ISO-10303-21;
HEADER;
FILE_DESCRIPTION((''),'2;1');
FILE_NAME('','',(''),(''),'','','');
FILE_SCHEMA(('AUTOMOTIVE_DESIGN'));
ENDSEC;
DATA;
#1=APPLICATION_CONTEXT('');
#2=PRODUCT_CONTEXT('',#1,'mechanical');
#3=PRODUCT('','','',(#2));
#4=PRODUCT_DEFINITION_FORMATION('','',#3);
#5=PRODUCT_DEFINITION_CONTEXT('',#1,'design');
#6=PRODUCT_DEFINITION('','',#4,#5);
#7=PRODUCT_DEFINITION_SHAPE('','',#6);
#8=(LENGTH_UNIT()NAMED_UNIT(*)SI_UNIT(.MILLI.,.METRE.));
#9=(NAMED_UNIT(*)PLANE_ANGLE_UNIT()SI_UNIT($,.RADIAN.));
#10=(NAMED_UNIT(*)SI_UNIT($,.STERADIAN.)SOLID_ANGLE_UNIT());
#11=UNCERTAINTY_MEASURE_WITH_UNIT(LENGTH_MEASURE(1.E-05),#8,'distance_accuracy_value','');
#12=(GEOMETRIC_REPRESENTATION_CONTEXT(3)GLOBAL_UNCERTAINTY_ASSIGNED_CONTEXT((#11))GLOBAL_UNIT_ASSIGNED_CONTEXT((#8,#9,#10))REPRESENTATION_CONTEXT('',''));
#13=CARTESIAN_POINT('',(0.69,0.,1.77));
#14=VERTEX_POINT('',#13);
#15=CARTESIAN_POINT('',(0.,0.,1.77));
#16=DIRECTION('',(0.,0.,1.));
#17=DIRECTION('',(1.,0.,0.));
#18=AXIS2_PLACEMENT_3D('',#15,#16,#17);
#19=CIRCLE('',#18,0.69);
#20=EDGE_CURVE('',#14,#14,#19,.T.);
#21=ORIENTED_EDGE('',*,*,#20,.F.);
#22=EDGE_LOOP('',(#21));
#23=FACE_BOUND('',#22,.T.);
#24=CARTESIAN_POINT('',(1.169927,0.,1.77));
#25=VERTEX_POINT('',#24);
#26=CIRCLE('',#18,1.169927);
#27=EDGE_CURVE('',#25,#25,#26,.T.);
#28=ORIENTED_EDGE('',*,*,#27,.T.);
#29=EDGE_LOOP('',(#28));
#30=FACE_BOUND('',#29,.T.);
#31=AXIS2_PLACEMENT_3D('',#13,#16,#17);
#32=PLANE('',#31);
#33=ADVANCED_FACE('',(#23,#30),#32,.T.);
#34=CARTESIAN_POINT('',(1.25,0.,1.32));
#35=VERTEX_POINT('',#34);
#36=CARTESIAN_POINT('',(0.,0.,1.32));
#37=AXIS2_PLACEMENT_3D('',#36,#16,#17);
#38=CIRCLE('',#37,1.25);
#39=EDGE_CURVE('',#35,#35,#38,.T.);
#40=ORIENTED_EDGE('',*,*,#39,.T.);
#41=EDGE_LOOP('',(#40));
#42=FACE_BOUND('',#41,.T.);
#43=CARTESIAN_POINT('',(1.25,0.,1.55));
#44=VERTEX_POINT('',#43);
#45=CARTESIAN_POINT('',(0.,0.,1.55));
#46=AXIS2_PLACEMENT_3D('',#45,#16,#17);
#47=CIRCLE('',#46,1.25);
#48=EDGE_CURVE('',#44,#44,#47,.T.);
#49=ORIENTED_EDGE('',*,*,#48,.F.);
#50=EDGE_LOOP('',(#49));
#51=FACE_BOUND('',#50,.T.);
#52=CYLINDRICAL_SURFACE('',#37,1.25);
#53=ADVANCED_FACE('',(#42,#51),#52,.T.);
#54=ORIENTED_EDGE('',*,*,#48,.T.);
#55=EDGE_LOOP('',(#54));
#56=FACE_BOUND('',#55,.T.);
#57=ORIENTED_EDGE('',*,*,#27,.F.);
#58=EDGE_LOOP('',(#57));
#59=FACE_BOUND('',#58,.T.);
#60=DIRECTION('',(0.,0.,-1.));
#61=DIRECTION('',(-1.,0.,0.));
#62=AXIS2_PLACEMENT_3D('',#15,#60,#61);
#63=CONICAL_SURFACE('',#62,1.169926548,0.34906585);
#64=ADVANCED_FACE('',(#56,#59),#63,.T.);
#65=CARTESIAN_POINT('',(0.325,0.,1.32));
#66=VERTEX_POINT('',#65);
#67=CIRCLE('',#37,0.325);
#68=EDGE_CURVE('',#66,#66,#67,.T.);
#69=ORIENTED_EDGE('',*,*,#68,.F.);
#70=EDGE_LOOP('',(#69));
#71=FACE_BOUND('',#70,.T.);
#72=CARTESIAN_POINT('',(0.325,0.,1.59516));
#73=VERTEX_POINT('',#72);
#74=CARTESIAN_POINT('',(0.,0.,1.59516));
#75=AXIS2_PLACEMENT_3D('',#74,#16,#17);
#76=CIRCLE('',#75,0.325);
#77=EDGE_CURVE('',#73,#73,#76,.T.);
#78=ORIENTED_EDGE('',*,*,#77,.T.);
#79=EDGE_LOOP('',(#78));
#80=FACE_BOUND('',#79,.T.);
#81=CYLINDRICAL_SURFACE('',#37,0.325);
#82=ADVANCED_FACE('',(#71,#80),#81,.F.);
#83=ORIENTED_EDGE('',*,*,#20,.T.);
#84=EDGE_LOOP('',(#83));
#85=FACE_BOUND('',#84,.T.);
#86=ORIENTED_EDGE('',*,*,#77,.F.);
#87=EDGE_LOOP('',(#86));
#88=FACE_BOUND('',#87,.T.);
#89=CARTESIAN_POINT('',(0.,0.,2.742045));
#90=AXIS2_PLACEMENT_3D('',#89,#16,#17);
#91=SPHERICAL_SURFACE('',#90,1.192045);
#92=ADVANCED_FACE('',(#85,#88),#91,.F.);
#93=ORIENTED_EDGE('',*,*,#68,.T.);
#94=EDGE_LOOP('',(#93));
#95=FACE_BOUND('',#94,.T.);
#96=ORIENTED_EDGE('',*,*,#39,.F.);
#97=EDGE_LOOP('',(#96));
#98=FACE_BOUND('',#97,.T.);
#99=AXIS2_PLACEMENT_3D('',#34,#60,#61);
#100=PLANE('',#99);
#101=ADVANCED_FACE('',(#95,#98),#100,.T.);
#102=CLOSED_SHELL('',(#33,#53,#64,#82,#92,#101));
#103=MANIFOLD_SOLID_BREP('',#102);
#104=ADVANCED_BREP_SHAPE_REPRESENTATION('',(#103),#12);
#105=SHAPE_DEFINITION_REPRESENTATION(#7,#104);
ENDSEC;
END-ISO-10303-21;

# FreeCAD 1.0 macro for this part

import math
import FreeCAD as App
import Part
import Sketcher
Q = App.Units.Quantity

doc = App.newDocument("Part")
body = doc.addObject("PartDesign::Body", "Body")

sketch1 = doc.addObject("Sketcher::SketchObject", "Sketch")
body.addObject(sketch1)
sketch1.AttachmentSupport = (doc.XZ_Plane, [""])
sketch1.MapMode = "FlatFace"
sketch1.addGeometry([
    Part.LineSegment(App.Vector(1.25, 1.55, 0), App.Vector(1.25, 1.32, 0)),
    Part.LineSegment(App.Vector(1.25, 1.32, 0), App.Vector(0.33, 1.32, 0)),
    Part.LineSegment(App.Vector(0.33, 1.32, 0), App.Vector(0.33, 1.6, 0)),
    Part.ArcOfCircle(Part.Circle(App.Vector(0, 2.74, 0), App.Vector(0, 0, 1), 1.19), math.radians(-74.18), math.radians(-54.63)),
    Part.LineSegment(App.Vector(0.69, 1.77, 0), App.Vector(1.17, 1.77, 0)),
    Part.LineSegment(App.Vector(1.17, 1.77, 0), App.Vector(1.25, 1.55, 0)),
], False)
sketch1.addConstraint([
    Sketcher.Constraint("Coincident", 0, 2, 1, 1),
    Sketcher.Constraint("Coincident", 1, 2, 2, 1),
    Sketcher.Constraint("Coincident", 2, 2, 3, 1),
    Sketcher.Constraint("Coincident", 3, 2, 4, 1),
    Sketcher.Constraint("Coincident", 4, 2, 5, 1),
    Sketcher.Constraint("Coincident", 5, 2, 0, 1),
    Sketcher.Constraint("Vertical", 0),
    Sketcher.Constraint("Horizontal", 1),
    Sketcher.Constraint("Vertical", 2),
    Sketcher.Constraint("Horizontal", 4),
    Sketcher.Constraint("PointOnObject", 3, 3, -2),
    Sketcher.Constraint("Angle", 5, Q("-70 deg")),
    Sketcher.Constraint("DistanceY", 0, 2, 0, 1, 0.23),
    Sketcher.Constraint("DistanceX", 1, 2, 1, 1, 0.925),
    Sketcher.Constraint("DistanceX", -1, 1, 0, 2, 1.25),
    Sketcher.Constraint("DistanceY", -1, 1, 0, 2, 1.32),
    Sketcher.Constraint("DistanceX", -1, 1, 3, 2, 0.69),
    Sketcher.Constraint("DistanceY", -1, 1, 3, 2, 1.77),
    Sketcher.Constraint("Radius", 3, 1.192045),
])
revolution = doc.addObject("PartDesign::Revolution", "Revolution")
body.addObject(revolution)
revolution.Profile = sketch1
revolution.ReferenceAxis = (sketch1, ["V_Axis"])
revolution.Angle = 360

doc.recompute()
